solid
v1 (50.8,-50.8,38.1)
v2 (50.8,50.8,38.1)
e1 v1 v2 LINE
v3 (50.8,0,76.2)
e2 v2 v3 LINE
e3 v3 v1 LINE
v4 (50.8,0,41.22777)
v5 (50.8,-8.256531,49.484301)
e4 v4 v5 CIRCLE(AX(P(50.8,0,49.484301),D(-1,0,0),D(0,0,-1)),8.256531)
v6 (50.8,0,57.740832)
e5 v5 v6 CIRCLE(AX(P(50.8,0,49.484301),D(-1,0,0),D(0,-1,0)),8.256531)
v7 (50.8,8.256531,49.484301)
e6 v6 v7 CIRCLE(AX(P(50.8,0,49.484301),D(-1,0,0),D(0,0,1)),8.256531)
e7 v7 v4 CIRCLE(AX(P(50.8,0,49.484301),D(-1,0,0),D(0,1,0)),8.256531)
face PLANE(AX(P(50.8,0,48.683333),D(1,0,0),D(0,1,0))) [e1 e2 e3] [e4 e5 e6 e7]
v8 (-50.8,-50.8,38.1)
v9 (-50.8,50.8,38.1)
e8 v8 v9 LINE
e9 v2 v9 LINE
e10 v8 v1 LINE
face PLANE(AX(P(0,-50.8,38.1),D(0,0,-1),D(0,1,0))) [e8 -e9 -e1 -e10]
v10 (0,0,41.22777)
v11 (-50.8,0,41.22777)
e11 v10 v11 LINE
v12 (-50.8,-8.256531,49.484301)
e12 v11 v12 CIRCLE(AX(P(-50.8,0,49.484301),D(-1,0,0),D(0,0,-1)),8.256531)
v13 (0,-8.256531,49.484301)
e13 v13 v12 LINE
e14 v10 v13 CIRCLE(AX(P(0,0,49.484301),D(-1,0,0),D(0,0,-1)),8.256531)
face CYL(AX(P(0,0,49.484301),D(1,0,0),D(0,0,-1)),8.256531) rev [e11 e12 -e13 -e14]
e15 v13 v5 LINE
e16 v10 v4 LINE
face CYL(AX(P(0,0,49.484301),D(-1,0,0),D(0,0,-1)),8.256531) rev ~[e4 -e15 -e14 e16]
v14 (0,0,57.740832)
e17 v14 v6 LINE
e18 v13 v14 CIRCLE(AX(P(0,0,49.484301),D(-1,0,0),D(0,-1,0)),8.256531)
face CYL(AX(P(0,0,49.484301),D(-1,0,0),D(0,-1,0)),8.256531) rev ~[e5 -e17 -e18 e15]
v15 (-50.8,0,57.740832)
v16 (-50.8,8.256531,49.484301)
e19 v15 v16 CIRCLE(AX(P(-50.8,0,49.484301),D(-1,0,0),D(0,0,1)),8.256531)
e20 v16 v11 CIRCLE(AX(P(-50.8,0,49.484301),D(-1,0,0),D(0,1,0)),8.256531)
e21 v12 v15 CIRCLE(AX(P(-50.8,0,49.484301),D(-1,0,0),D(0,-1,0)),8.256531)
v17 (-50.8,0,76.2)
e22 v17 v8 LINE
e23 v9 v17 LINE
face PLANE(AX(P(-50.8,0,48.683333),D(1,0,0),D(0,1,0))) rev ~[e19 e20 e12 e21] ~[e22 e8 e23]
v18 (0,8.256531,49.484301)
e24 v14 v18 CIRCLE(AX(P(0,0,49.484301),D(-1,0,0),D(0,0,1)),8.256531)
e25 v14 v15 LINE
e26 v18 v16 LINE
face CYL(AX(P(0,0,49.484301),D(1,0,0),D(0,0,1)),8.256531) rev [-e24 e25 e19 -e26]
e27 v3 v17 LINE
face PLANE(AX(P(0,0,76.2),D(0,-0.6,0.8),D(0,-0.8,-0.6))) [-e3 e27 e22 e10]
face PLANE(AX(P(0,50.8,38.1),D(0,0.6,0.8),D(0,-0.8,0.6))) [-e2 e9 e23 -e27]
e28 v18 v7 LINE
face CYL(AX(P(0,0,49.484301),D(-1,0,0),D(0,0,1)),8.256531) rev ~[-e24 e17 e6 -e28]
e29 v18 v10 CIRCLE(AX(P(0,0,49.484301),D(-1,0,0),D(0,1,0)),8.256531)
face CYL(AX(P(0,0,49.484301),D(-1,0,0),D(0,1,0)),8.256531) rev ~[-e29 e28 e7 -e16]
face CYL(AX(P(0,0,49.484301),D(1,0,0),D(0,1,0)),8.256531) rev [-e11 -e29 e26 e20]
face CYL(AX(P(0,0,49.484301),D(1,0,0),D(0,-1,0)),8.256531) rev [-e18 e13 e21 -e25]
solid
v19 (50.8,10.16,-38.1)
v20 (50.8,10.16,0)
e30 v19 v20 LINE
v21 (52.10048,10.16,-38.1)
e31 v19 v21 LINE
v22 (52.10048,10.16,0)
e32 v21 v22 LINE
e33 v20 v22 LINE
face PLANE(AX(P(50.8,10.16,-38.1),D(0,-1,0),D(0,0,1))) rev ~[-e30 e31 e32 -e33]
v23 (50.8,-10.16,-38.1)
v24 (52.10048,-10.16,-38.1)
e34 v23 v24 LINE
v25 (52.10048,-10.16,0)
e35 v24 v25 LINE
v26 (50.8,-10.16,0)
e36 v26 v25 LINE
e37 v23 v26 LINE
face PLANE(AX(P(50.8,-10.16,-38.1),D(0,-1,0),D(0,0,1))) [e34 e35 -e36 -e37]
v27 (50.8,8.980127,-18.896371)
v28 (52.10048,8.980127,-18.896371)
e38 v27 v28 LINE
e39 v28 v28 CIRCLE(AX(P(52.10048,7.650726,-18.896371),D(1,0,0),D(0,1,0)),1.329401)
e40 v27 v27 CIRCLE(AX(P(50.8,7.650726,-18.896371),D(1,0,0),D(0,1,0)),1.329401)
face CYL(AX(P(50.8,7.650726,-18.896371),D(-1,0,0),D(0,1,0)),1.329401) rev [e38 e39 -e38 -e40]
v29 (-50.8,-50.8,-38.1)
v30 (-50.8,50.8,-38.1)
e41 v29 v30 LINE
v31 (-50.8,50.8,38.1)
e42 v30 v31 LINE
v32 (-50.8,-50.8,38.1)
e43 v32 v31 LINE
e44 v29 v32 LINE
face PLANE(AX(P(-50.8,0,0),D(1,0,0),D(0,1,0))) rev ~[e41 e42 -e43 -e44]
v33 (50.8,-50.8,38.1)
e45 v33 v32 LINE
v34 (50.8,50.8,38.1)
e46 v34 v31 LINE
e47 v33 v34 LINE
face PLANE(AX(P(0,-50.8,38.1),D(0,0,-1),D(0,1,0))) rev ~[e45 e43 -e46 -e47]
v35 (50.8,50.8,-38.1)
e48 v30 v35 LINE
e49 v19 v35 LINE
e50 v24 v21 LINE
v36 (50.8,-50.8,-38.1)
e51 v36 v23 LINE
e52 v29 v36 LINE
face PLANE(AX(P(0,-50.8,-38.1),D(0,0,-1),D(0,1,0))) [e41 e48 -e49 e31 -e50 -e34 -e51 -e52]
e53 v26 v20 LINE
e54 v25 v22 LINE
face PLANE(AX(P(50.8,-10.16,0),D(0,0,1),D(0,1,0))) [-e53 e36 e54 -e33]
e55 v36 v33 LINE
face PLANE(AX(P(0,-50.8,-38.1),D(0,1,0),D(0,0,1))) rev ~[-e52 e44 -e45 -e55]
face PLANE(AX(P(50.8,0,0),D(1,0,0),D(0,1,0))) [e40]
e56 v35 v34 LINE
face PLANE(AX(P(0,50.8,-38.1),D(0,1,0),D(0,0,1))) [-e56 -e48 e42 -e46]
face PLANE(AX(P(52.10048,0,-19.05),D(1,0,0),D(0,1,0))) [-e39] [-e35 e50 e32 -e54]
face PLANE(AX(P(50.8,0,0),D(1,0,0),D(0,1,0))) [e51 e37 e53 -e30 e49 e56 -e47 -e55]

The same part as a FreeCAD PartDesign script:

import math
import FreeCAD as App
import Part
import Sketcher

V = App.Vector
Q = App.Units.Quantity


def add_polygon(sketch, points):
    """Adds a closed chain of lines whose ends are joined by coincident constraints."""
    first, n = sketch.GeometryCount, len(points)
    for a, b in zip(points, points[1:] + points[:1]):
        sketch.addGeometry(Part.LineSegment(App.Vector(*a, 0), App.Vector(*b, 0)), False)
    for i in range(n):
        sketch.addConstraint(Sketcher.Constraint("Coincident", first + i, 2, first + (i + 1) % n, 1))

doc = App.newDocument("Part")
params = doc.addObject("Spreadsheet::Sheet", "Params")
for row, (alias, value) in enumerate([
    ("sketch1_width", "4 in"),
    ("sketch1_height", "3 in"),
    ("pad1_length", "2 in"),
    ("pad1_length2", "2 in"),
    ("sketch2_width", "0.8 in"),
    ("sketch2_height", "1.5 in"),
    ("pad2_length", "0.0512 in"),
    ("sketch3_width", "4 in"),
    ("sketch3_length", "2.5 in"),
    ("pad3_length", "2 in"),
    ("pad3_length2", "2 in"),
], start=1):
    params.set(f"A{row}", alias)
    params.set(f"B{row}", "=" + value)
    params.setAlias(f"B{row}", alias)

body = doc.addObject("PartDesign::Body", "Body")

# Sketch on YZ plane
sketch1 = body.newObject("Sketcher::SketchObject", "Sketch")
sketch1.AttachmentSupport = (doc.getObject("YZ_Plane"), [""])
sketch1.MapMode = "FlatFace"
add_polygon(sketch1, [(-51, 38), (-51, -38), (51, -38), (51, 38)])  # lines 0-3
sketch1.addConstraint(Sketcher.Constraint("Vertical", 0))
sketch1.addConstraint(Sketcher.Constraint("Horizontal", 1))
sketch1.addConstraint(Sketcher.Constraint("Vertical", 2))
sketch1.addConstraint(Sketcher.Constraint("Horizontal", 3))
sketch1.addConstraint(Sketcher.Constraint("Symmetric", 0, 2, 2, 2, -1, 1))
sketch1.addConstraint(Sketcher.Constraint("DistanceX", 1, 1, 1, 2, Q("4 in")))
sketch1.addConstraint(Sketcher.Constraint("DistanceY", 0, 2, 0, 1, Q("3 in")))
sketch1.setExpression("Constraints[9]", "Params.sketch1_width")
sketch1.setExpression("Constraints[10]", "Params.sketch1_height")
pad1 = body.newObject("PartDesign::Pad", "Pad")
pad1.Profile = sketch1
pad1.Type = "TwoLengths"
pad1.setExpression("Length", "Params.pad1_length")
pad1.setExpression("Length2", "Params.pad1_length2")

# Sketch on YZ plane
sketch2 = body.newObject("Sketcher::SketchObject", "Sketch001")
sketch2.AttachmentSupport = (doc.getObject("YZ_Plane"), [""])
sketch2.MapMode = "FlatFace"
sketch2.AttachmentOffset = App.Placement(V(0, 0, 2 * 25.4), App.Rotation())
add_polygon(sketch2, [(-10.2, 0), (-10.2, -38.1), (10.2, -38.1), (10.2, 0)])  # lines 0-3
sketch2.addGeometry(Part.Circle(V(7.7, -18.9, 0), V(0, 0, 1), 1.3), False)  # 4
sketch2.addConstraint(Sketcher.Constraint("Vertical", 0))
sketch2.addConstraint(Sketcher.Constraint("Horizontal", 1))
sketch2.addConstraint(Sketcher.Constraint("Vertical", 2))
sketch2.addConstraint(Sketcher.Constraint("Horizontal", 3))
sketch2.addConstraint(Sketcher.Constraint("Symmetric", 2, 2, 3, 2, -1, 1))
sketch2.addConstraint(Sketcher.Constraint("DistanceX", 1, 1, 1, 2, Q("0.8 in")))
sketch2.addConstraint(Sketcher.Constraint("DistanceY", 0, 2, 0, 1, Q("1.5 in")))
sketch2.addConstraint(Sketcher.Constraint("Diameter", 4, 2.658802))
sketch2.addConstraint(Sketcher.Constraint("DistanceY", 4, 3, -1, 1, 18.896371))
sketch2.addConstraint(Sketcher.Constraint("DistanceX", -1, 1, 4, 3, 7.650726))
sketch2.setExpression("Constraints[9]", "Params.sketch2_width")
sketch2.setExpression("Constraints[10]", "Params.sketch2_height")
pad2 = body.newObject("PartDesign::Pad", "Pad001")
pad2.Profile = sketch2
pad2.setExpression("Length", "Params.pad2_length")
body2 = doc.addObject("PartDesign::Body", "Body001")

# Sketch on YZ plane
sketch3 = body2.newObject("Sketcher::SketchObject", "Sketch002")
sketch3.AttachmentSupport = (doc.getObject("YZ_Plane001"), [""])
sketch3.MapMode = "FlatFace"
add_polygon(sketch3, [(0, 76), (-51, 38), (51, 38)])  # lines 0-2
sketch3.addGeometry(Part.ArcOfCircle(Part.Circle(V(0, 49, 0), V(0, 0, 1), 8), math.radians(90), math.radians(180)), False)  # 3
sketch3.addGeometry(Part.ArcOfCircle(Part.Circle(V(0, 49, 0), V(0, 0, 1), 8), math.radians(0), math.radians(90)), False)  # 4
sketch3.addGeometry(Part.ArcOfCircle(Part.Circle(V(0, 49, 0), V(0, 0, 1), 8), math.radians(-90), math.radians(0)), False)  # 5
sketch3.addGeometry(Part.ArcOfCircle(Part.Circle(V(0, 49, 0), V(0, 0, 1), 8), math.radians(180), math.radians(270)), False)  # 6
sketch3.addConstraint(Sketcher.Constraint("Tangent", 3, 1, 4, 2))
sketch3.addConstraint(Sketcher.Constraint("Tangent", 4, 1, 5, 2))
sketch3.addConstraint(Sketcher.Constraint("Tangent", 5, 1, 6, 2))
sketch3.addConstraint(Sketcher.Constraint("Tangent", 6, 1, 3, 2))
sketch3.addConstraint(Sketcher.Constraint("Horizontal", 1))
sketch3.addConstraint(Sketcher.Constraint("Equal", 3, 4))
sketch3.addConstraint(Sketcher.Constraint("Symmetric", 4, 1, 6, 1, -2))
sketch3.addConstraint(Sketcher.Constraint("PointOnObject", 2, 2, -2))
sketch3.addConstraint(Sketcher.Constraint("PointOnObject", 3, 1, -2))
sketch3.addConstraint(Sketcher.Constraint("PointOnObject", 5, 1, -2))
sketch3.addConstraint(Sketcher.Constraint("Horizontal", 6, 3, 4, 1))
sketch3.addConstraint(Sketcher.Constraint("Equal", 0, 2))
sketch3.addConstraint(Sketcher.Constraint("DistanceX", 1, 1, 1, 2, Q("4 in")))
sketch3.addConstraint(Sketcher.Constraint("DistanceY", -1, 1, 2, 2, Q("3 in")))
sketch3.addConstraint(Sketcher.Constraint("Distance", 0, Q("2.5 in")))
sketch3.addConstraint(Sketcher.Constraint("Radius", 3, 8.256531))
sketch3.addConstraint(Sketcher.Constraint("DistanceY", -1, 1, 3, 3, 49.484301))
sketch3.setExpression("Constraints[15]", "Params.sketch3_width")
sketch3.setExpression("Constraints[17]", "Params.sketch3_length")
pad3 = body2.newObject("PartDesign::Pad", "Pad002")
pad3.Profile = sketch3
pad3.Type = "TwoLengths"
pad3.setExpression("Length", "Params.pad3_length")
pad3.setExpression("Length2", "Params.pad3_length2")

doc.recompute()
